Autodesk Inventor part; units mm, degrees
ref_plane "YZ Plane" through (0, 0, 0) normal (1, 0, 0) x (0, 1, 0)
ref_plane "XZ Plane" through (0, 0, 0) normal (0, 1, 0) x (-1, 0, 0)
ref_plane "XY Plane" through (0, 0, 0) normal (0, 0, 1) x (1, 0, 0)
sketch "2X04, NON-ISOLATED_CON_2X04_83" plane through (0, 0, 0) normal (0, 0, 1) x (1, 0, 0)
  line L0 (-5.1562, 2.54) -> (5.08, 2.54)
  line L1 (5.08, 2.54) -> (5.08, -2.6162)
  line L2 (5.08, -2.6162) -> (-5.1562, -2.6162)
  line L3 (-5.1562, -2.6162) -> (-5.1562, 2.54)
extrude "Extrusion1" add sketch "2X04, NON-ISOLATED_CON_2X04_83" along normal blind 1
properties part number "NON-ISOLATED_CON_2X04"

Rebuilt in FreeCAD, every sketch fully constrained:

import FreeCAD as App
import Part
import Sketcher
Q = App.Units.Quantity


def add_polygon(sketch, points):
    """Adds a closed chain of lines whose ends are joined by coincident constraints."""
    first, n = sketch.GeometryCount, len(points)
    for a, b in zip(points, points[1:] + points[:1]):
        sketch.addGeometry(Part.LineSegment(App.Vector(*a, 0), App.Vector(*b, 0)), False)
    for i in range(n):
        sketch.addConstraint(Sketcher.Constraint("Coincident", first + i, 2, first + (i + 1) % n, 1))

doc = App.newDocument("Part")
body = doc.addObject("PartDesign::Body", "Body")

# Sketch on XY plane
sketch1 = doc.addObject("Sketcher::SketchObject", "Sketch")
body.addObject(sketch1)
sketch1.AttachmentSupport = (doc.XY_Plane, [""])
sketch1.MapMode = "FlatFace"
add_polygon(sketch1, [(5, 3), (-5, 3), (-5, -3), (5, -3)])  # lines 0-3
sketch1.addConstraint([
    Sketcher.Constraint("Horizontal", 0),
    Sketcher.Constraint("Vertical", 1),
    Sketcher.Constraint("Horizontal", 2),
    Sketcher.Constraint("Vertical", 3),
    Sketcher.Constraint("DistanceY", -1, 1, 0, 2, Q("0.1 in")),
    Sketcher.Constraint("DistanceX", -1, 1, 2, 2, Q("0.2 in")),
    Sketcher.Constraint("DistanceX", 0, 2, 0, 1, Q("0.403 in")),
    Sketcher.Constraint("DistanceY", 1, 2, 1, 1, Q("0.203 in")),
])
pad1 = doc.addObject("PartDesign::Pad", "Pad")
body.addObject(pad1)
pad1.Profile = sketch1
pad1.Length = 1

doc.recompute()
